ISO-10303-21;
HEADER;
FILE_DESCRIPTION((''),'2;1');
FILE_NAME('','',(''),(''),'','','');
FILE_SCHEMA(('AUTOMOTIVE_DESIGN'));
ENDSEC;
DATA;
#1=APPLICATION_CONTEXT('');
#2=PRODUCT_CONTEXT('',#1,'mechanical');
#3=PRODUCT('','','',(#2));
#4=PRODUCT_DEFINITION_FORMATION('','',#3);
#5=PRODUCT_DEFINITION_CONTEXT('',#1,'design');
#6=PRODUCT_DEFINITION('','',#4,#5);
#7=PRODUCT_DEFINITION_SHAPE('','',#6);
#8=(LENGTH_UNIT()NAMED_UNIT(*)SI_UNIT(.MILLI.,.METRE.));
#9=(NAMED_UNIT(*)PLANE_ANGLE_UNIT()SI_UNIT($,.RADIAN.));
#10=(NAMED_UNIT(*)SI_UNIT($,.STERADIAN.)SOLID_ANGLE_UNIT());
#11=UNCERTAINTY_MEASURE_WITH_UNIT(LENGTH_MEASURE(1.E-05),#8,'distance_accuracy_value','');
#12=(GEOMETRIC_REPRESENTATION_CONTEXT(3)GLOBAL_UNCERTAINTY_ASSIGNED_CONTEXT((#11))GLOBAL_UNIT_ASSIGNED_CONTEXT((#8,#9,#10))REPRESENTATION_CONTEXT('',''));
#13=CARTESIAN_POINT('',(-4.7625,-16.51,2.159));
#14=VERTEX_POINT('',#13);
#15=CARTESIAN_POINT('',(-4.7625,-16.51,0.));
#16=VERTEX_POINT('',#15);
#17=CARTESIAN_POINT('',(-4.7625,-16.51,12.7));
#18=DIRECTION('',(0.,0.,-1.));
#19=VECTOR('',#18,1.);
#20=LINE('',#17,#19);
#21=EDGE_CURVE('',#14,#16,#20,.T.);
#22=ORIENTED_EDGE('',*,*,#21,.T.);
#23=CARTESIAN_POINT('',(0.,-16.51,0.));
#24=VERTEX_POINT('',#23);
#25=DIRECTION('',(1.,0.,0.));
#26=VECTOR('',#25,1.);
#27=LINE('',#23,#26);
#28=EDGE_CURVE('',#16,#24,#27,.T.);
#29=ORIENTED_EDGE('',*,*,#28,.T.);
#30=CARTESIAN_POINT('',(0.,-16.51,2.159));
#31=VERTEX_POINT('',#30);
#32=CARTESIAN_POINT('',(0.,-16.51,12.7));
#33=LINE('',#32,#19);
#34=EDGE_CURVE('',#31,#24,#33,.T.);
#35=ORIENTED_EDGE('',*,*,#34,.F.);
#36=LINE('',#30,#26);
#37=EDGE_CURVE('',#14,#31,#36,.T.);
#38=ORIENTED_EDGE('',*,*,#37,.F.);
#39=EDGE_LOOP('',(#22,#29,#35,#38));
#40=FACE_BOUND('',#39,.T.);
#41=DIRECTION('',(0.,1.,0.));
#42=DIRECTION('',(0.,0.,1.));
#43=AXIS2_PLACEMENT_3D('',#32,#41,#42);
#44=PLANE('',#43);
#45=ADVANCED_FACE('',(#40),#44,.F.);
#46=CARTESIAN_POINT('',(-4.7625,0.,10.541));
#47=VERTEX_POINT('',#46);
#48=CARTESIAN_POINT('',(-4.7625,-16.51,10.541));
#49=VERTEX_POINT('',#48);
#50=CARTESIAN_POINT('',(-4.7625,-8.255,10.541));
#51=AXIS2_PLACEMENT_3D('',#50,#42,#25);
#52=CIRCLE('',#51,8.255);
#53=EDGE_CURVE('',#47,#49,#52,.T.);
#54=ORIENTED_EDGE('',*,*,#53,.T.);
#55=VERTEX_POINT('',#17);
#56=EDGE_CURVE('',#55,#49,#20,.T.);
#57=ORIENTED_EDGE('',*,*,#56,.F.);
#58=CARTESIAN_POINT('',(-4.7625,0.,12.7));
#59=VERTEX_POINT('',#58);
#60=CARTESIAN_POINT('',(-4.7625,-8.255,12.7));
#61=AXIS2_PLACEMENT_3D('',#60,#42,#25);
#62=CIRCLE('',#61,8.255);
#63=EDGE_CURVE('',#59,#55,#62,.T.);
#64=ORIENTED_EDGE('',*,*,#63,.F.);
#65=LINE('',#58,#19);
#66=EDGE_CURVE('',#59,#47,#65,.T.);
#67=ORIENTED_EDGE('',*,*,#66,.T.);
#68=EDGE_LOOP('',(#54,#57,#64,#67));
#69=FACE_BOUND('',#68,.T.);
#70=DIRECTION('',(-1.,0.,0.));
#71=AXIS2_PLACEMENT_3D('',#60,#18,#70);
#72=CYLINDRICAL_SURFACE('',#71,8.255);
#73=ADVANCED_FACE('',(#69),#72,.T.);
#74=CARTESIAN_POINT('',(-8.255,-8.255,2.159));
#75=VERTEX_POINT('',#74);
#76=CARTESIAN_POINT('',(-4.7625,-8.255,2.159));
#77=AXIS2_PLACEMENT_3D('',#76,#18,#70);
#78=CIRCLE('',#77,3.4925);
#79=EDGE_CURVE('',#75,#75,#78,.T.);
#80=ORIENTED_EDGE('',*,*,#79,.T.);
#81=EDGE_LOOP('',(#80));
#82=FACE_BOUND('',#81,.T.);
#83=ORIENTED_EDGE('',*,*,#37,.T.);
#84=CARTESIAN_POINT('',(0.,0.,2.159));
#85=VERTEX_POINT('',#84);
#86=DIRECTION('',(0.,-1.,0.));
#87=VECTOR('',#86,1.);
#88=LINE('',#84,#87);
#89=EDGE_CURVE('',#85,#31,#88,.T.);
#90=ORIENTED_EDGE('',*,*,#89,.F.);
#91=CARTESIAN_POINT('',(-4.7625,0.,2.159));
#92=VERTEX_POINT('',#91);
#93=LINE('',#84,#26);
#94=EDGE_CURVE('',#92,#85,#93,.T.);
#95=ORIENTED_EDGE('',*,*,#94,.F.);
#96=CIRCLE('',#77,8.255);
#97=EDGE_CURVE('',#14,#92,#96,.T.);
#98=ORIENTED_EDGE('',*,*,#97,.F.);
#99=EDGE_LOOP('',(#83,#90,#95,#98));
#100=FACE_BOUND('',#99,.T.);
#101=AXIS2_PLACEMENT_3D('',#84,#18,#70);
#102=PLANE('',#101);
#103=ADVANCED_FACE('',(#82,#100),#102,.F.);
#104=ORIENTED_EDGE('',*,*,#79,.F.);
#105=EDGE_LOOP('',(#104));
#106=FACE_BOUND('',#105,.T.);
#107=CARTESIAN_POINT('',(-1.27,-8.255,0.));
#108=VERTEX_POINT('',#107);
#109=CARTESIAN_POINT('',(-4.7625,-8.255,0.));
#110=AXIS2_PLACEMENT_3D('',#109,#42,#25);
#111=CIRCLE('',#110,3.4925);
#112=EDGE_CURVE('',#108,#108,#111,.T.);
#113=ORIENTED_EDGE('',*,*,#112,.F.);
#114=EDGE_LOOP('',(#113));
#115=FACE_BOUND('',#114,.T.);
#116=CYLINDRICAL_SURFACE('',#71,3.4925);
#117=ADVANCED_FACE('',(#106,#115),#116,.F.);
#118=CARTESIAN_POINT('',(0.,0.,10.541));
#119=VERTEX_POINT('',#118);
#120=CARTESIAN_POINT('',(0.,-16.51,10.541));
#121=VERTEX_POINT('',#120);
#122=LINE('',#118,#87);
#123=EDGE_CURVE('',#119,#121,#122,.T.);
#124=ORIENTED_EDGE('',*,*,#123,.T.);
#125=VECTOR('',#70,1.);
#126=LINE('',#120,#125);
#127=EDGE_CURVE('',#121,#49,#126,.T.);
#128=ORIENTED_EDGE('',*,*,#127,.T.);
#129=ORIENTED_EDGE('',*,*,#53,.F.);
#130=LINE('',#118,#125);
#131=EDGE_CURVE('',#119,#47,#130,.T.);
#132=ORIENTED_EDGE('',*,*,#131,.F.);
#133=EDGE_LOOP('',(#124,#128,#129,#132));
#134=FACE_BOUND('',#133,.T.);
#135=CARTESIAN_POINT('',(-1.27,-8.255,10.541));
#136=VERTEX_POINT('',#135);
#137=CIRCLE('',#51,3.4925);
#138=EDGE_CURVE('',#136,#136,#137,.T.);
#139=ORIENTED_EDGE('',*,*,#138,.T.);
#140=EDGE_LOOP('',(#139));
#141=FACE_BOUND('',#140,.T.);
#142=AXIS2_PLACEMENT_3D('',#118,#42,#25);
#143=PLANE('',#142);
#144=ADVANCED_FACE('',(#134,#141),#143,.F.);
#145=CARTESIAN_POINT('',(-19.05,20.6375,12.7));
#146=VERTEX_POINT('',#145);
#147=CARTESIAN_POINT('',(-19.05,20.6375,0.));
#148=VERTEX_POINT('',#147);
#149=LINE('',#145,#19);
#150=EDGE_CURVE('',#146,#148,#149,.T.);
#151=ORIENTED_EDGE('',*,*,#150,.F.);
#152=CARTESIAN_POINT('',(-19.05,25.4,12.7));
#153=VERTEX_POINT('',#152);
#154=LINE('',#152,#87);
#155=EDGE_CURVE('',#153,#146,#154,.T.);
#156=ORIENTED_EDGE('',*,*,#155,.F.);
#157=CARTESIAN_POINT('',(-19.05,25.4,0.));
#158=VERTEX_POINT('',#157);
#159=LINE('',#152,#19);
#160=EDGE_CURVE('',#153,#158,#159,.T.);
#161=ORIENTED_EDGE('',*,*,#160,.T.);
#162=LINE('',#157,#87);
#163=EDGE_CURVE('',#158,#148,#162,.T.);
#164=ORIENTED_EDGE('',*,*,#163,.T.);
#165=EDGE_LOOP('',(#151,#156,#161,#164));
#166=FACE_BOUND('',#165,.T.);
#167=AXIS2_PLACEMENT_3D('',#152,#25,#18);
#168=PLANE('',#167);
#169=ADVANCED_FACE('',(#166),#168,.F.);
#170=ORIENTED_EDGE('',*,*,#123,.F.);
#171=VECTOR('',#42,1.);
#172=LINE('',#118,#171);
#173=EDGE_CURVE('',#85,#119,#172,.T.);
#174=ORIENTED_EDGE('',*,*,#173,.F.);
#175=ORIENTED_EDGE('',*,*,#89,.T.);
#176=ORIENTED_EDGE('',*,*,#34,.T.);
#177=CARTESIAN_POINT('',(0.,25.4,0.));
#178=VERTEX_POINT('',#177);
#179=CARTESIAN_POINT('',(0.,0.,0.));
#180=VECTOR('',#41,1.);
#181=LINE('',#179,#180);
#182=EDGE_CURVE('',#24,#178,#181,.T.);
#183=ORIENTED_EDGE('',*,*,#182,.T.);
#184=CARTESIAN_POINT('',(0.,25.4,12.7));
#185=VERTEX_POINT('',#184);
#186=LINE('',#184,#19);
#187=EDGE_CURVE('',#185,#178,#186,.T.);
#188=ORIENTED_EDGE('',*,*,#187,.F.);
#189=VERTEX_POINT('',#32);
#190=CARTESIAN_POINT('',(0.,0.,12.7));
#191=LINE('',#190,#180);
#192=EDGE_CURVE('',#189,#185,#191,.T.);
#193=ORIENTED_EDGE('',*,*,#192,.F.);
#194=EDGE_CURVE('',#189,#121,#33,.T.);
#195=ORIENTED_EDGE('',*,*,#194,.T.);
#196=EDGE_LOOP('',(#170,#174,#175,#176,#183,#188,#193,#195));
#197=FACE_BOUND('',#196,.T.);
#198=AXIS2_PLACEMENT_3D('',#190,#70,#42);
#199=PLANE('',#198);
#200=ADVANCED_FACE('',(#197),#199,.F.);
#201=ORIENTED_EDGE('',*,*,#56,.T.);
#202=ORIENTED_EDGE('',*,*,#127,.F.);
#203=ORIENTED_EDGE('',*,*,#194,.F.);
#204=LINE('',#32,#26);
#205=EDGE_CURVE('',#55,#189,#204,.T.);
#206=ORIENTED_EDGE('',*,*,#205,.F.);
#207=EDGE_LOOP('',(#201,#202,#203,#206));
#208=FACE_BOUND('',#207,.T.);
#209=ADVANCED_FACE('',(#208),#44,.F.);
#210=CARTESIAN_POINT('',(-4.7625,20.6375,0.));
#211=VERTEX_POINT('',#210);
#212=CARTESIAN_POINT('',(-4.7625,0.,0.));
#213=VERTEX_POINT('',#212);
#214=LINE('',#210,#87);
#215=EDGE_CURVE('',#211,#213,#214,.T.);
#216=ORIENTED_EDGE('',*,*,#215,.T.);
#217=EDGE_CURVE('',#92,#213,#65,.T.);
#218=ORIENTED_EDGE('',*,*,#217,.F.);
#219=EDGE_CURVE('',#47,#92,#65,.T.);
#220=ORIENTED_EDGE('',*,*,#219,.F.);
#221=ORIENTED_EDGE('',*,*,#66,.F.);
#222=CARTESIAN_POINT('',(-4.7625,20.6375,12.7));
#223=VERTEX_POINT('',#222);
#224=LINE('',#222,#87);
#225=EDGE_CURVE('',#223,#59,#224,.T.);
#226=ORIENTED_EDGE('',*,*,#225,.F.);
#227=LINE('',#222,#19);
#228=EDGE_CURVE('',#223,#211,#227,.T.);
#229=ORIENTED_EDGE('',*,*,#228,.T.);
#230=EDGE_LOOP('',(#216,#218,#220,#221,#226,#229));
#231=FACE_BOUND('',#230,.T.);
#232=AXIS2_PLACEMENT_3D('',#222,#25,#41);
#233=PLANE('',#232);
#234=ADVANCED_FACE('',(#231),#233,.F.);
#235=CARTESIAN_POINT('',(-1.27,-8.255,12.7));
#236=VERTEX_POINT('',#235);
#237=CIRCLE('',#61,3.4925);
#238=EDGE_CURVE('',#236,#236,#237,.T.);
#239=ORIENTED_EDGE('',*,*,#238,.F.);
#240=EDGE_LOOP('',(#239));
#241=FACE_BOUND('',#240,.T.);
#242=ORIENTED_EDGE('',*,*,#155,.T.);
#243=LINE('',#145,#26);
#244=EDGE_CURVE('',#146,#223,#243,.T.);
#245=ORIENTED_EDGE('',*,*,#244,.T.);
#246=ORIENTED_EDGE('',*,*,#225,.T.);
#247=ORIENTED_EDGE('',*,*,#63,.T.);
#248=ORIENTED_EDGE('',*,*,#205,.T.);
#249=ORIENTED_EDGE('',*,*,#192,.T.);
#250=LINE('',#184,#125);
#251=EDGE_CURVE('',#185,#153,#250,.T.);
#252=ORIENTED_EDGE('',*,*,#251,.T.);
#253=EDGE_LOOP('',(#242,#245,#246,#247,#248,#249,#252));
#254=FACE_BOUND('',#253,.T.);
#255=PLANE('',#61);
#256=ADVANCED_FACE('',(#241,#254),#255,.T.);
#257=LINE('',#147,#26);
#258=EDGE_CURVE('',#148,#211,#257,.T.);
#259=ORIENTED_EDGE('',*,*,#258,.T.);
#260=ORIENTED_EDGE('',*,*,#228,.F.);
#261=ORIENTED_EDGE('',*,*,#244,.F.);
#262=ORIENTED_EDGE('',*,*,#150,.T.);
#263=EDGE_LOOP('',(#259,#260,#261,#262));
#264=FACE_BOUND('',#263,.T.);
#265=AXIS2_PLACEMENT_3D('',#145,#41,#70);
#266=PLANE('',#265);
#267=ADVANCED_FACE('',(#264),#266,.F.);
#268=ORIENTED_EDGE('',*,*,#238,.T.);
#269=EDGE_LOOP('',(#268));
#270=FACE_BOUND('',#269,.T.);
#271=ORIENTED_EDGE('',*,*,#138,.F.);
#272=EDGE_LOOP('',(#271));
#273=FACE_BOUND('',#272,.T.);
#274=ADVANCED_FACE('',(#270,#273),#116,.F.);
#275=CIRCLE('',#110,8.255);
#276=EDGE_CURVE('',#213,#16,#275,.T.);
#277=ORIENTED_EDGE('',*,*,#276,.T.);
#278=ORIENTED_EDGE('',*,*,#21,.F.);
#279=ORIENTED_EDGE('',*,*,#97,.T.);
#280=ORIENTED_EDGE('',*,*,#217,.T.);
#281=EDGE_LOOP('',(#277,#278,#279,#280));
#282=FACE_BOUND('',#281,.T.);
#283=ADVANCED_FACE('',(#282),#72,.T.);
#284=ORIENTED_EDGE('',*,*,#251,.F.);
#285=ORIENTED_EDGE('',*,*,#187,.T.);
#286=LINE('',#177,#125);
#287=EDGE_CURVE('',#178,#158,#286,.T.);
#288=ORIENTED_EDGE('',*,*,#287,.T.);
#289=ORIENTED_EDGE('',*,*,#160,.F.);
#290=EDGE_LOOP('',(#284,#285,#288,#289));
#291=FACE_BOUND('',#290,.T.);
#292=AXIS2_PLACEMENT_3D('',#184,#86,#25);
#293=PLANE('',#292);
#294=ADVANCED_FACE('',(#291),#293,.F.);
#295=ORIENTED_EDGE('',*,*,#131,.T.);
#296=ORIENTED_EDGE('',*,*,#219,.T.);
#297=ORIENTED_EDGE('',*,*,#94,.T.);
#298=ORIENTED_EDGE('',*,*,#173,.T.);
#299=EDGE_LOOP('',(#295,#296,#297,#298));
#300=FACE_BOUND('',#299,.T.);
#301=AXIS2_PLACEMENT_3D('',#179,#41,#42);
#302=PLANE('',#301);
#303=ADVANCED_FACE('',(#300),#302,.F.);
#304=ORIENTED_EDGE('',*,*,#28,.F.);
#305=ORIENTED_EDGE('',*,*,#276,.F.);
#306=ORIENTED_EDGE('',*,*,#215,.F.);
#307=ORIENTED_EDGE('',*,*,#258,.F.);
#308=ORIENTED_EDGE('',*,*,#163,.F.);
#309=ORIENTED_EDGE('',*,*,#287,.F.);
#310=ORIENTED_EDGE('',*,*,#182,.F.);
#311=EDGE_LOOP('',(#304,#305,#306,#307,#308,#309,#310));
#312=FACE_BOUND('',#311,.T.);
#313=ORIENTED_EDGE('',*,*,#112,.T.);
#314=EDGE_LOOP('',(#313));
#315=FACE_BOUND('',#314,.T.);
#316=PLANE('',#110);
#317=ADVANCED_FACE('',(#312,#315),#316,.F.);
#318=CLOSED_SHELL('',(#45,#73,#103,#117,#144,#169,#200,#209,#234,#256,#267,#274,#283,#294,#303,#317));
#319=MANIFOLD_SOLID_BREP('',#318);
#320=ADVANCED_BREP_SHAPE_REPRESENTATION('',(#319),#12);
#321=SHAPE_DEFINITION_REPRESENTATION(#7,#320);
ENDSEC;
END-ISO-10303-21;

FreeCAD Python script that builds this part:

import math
import FreeCAD as App
import Part
import Sketcher
from FreeCAD import Vector
Q = App.Units.Quantity


def add_polygon(sketch, points):
    """Adds a closed chain of lines whose ends are joined by coincident constraints."""
    first, n = sketch.GeometryCount, len(points)
    for a, b in zip(points, points[1:] + points[:1]):
        sketch.addGeometry(Part.LineSegment(App.Vector(*a, 0), App.Vector(*b, 0)), False)
    for i in range(n):
        sketch.addConstraint(Sketcher.Constraint("Coincident", first + i, 2, first + (i + 1) % n, 1))

doc = App.newDocument("Part")
params = doc.addObject("Spreadsheet::Sheet", "Params")
for row, (alias, value) in enumerate([
    ("sketch1_diameter", "0.275 in"),
    ("sketch1_radius", "0.325 in"),
    ("sketch1_width", "0.75 in"),
    ("sketch1_width2", "0.5625 in"),
    ("pad1_length", "0.5 in"),
    ("sketch2_width", "1 in"),
    ("sketch2_height", "0.33 in"),
    ("pocket1_length", "0.65 in"),
], start=1):
    params.set(f"A{row}", alias)
    params.set(f"B{row}", "=" + value)
    params.setAlias(f"B{row}", alias)

body = doc.addObject("PartDesign::Body", "Body")

# Sketch on XY plane
sketch1 = body.newObject("Sketcher::SketchObject", "Sketch")
sketch1.AttachmentSupport = (doc.getObject("XY_Plane"), [""])
sketch1.MapMode = "FlatFace"
sketch1.addGeometry(Part.LineSegment(Vector(0, 25.4, 0), Vector(-19.05, 25.4, 0)), False)
sketch1.addGeometry(Part.LineSegment(Vector(-19.05, 25.4, 0), Vector(-19.05, 20.6375, 0)), False)
sketch1.addGeometry(Part.LineSegment(Vector(-19.05, 20.6375, 0), Vector(-4.7625, 20.6375, 0)), False)
sketch1.addGeometry(Part.LineSegment(Vector(-4.7625, 20.6375, 0), Vector(-4.7625, 0, 0)), False)
sketch1.addGeometry(Part.ArcOfCircle(Part.Circle(Vector(-4.7625, -8.255, 0), Vector(0, 0, 1), 8.255), math.radians(90), math.radians(270)), False)
sketch1.addGeometry(Part.LineSegment(Vector(-4.7625, -16.51, 0), Vector(0, -16.51, 0)), False)
sketch1.addGeometry(Part.LineSegment(Vector(0, -16.51, 0), Vector(0, 25.4, 0)), False)
sketch1.addGeometry(Part.Circle(Vector(-4.7625, -8.255, 0), Vector(0, 0, 1), 3.4925), False)
sketch1.addConstraint(Sketcher.Constraint("Coincident", 0, 2, 1, 1))
sketch1.addConstraint(Sketcher.Constraint("Coincident", 1, 2, 2, 1))
sketch1.addConstraint(Sketcher.Constraint("Coincident", 2, 2, 3, 1))
sketch1.addConstraint(Sketcher.Constraint("Coincident", 3, 2, 4, 1))
sketch1.addConstraint(Sketcher.Constraint("Tangent", 4, 2, 5, 1))
sketch1.addConstraint(Sketcher.Constraint("Coincident", 5, 2, 6, 1))
sketch1.addConstraint(Sketcher.Constraint("Coincident", 6, 2, 0, 1))
sketch1.addConstraint(Sketcher.Constraint("Horizontal", 0))
sketch1.addConstraint(Sketcher.Constraint("Vertical", 1))
sketch1.addConstraint(Sketcher.Constraint("Horizontal", 2))
sketch1.addConstraint(Sketcher.Constraint("Vertical", 3))
sketch1.addConstraint(Sketcher.Constraint("Horizontal", 5))
sketch1.addConstraint(Sketcher.Constraint("Vertical", 6))
sketch1.addConstraint(Sketcher.Constraint("Coincident", 7, 3, 4, 3))
sketch1.addConstraint(Sketcher.Constraint("PointOnObject", 3, 2, -1))
sketch1.addConstraint(Sketcher.Constraint("PointOnObject", 5, 2, -2))
sketch1.addConstraint(Sketcher.Constraint("Vertical", 7, 3, 2, 2))
sketch1.addConstraint(Sketcher.Constraint("Equal", 5, 1))
sketch1.addConstraint(Sketcher.Constraint("Diameter", 7, Q("0.275 in")))
sketch1.addConstraint(Sketcher.Constraint("DistanceY", -1, 1, 0, 2, Q("1 in")))
sketch1.addConstraint(Sketcher.Constraint("Radius", 4, Q("0.325 in")))
sketch1.addConstraint(Sketcher.Constraint("DistanceX", 0, 2, 0, 1, Q("0.75 in")))
sketch1.addConstraint(Sketcher.Constraint("DistanceX", 2, 1, 2, 2, Q("0.5625 in")))
sketch1.setExpression("Constraints[18]", "Params.sketch1_diameter")
sketch1.setExpression("Constraints[20]", "Params.sketch1_radius")
sketch1.setExpression("Constraints[21]", "Params.sketch1_width")
sketch1.setExpression("Constraints[22]", "Params.sketch1_width2")
pad1 = body.newObject("PartDesign::Pad", "Pad")
pad1.Profile = sketch1
pad1.setExpression("Length", "Params.pad1_length")

# Sketch on XZ plane
sketch2 = body.newObject("Sketcher::SketchObject", "Sketch001")
sketch2.AttachmentSupport = (doc.getObject("XZ_Plane"), [""])
sketch2.MapMode = "FlatFace"
sketch2.AttachmentOffset = App.Placement(Vector(0, 0, 0.65 * 25.4), App.Rotation())
add_polygon(sketch2, [(-25.4, 10.541), (-25.4, 2.159), (0, 2.159), (0, 10.541)])  # lines 0-3
sketch2.addConstraint(Sketcher.Constraint("Vertical", 0))
sketch2.addConstraint(Sketcher.Constraint("Horizontal", 1))
sketch2.addConstraint(Sketcher.Constraint("Vertical", 2))
sketch2.addConstraint(Sketcher.Constraint("Horizontal", 3))
sketch2.addConstraint(Sketcher.Constraint("PointOnObject", 1, 2, -2))
sketch2.addConstraint(Sketcher.Constraint("DistanceX", 1, 1, 1, 2, Q("1 in")))
sketch2.addConstraint(Sketcher.Constraint("DistanceY", 0, 2, 0, 1, Q("0.33 in")))
sketch2.addConstraint(Sketcher.Constraint("DistanceY", -1, 1, 0, 2, Q("0.085 in")))
sketch2.setExpression("Constraints[9]", "Params.sketch2_width")
sketch2.setExpression("Constraints[10]", "Params.sketch2_height")
pocket1 = body.newObject("PartDesign::Pocket", "Pocket")
pocket1.Profile = sketch2
pocket1.setExpression("Length", "Params.pocket1_length")

doc.recompute()
